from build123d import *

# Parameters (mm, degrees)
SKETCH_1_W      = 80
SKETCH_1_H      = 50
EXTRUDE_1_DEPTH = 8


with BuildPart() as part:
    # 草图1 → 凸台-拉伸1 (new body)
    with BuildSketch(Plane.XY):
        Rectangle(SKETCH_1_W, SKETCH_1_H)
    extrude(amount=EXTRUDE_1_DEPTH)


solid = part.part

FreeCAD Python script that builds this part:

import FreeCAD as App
import Part
import Sketcher

V = App.Vector
Q = App.Units.Quantity

doc = App.newDocument("Part")
body = doc.addObject("PartDesign::Body", "Body")

# Sketch on XY plane
sketch1 = doc.addObject("Sketcher::SketchObject", "Sketch")
body.addObject(sketch1)
sketch1.AttachmentSupport = (doc.XY_Plane, [""])
sketch1.MapMode = "FlatFace"
sketch1.addGeometry([
    Part.LineSegment(V(-40, 25, 0), V(-40, -25, 0)),
    Part.LineSegment(V(-40, -25, 0), V(40, -25, 0)),
    Part.LineSegment(V(40, -25, 0), V(40, 25, 0)),
    Part.LineSegment(V(40, 25, 0), V(-40, 25, 0)),
], False)
sketch1.addConstraint([
    Sketcher.Constraint("Coincident", 0, 2, 1, 1),
    Sketcher.Constraint("Coincident", 1, 2, 2, 1),
    Sketcher.Constraint("Coincident", 2, 2, 3, 1),
    Sketcher.Constraint("Coincident", 3, 2, 0, 1),
    Sketcher.Constraint("Vertical", 0),
    Sketcher.Constraint("Horizontal", 1),
    Sketcher.Constraint("Vertical", 2),
    Sketcher.Constraint("Horizontal", 3),
    Sketcher.Constraint("Symmetric", 0, 2, 2, 2, -1, 1),
    Sketcher.Constraint("DistanceX", 1, 1, 1, 2, Q("80 mm")),
    Sketcher.Constraint("DistanceY", 0, 2, 0, 1, Q("50 mm")),
])
pad1 = doc.addObject("PartDesign::Pad", "Pad")
body.addObject(pad1)
pad1.Profile = sketch1
pad1.Length = 8

doc.recompute()
